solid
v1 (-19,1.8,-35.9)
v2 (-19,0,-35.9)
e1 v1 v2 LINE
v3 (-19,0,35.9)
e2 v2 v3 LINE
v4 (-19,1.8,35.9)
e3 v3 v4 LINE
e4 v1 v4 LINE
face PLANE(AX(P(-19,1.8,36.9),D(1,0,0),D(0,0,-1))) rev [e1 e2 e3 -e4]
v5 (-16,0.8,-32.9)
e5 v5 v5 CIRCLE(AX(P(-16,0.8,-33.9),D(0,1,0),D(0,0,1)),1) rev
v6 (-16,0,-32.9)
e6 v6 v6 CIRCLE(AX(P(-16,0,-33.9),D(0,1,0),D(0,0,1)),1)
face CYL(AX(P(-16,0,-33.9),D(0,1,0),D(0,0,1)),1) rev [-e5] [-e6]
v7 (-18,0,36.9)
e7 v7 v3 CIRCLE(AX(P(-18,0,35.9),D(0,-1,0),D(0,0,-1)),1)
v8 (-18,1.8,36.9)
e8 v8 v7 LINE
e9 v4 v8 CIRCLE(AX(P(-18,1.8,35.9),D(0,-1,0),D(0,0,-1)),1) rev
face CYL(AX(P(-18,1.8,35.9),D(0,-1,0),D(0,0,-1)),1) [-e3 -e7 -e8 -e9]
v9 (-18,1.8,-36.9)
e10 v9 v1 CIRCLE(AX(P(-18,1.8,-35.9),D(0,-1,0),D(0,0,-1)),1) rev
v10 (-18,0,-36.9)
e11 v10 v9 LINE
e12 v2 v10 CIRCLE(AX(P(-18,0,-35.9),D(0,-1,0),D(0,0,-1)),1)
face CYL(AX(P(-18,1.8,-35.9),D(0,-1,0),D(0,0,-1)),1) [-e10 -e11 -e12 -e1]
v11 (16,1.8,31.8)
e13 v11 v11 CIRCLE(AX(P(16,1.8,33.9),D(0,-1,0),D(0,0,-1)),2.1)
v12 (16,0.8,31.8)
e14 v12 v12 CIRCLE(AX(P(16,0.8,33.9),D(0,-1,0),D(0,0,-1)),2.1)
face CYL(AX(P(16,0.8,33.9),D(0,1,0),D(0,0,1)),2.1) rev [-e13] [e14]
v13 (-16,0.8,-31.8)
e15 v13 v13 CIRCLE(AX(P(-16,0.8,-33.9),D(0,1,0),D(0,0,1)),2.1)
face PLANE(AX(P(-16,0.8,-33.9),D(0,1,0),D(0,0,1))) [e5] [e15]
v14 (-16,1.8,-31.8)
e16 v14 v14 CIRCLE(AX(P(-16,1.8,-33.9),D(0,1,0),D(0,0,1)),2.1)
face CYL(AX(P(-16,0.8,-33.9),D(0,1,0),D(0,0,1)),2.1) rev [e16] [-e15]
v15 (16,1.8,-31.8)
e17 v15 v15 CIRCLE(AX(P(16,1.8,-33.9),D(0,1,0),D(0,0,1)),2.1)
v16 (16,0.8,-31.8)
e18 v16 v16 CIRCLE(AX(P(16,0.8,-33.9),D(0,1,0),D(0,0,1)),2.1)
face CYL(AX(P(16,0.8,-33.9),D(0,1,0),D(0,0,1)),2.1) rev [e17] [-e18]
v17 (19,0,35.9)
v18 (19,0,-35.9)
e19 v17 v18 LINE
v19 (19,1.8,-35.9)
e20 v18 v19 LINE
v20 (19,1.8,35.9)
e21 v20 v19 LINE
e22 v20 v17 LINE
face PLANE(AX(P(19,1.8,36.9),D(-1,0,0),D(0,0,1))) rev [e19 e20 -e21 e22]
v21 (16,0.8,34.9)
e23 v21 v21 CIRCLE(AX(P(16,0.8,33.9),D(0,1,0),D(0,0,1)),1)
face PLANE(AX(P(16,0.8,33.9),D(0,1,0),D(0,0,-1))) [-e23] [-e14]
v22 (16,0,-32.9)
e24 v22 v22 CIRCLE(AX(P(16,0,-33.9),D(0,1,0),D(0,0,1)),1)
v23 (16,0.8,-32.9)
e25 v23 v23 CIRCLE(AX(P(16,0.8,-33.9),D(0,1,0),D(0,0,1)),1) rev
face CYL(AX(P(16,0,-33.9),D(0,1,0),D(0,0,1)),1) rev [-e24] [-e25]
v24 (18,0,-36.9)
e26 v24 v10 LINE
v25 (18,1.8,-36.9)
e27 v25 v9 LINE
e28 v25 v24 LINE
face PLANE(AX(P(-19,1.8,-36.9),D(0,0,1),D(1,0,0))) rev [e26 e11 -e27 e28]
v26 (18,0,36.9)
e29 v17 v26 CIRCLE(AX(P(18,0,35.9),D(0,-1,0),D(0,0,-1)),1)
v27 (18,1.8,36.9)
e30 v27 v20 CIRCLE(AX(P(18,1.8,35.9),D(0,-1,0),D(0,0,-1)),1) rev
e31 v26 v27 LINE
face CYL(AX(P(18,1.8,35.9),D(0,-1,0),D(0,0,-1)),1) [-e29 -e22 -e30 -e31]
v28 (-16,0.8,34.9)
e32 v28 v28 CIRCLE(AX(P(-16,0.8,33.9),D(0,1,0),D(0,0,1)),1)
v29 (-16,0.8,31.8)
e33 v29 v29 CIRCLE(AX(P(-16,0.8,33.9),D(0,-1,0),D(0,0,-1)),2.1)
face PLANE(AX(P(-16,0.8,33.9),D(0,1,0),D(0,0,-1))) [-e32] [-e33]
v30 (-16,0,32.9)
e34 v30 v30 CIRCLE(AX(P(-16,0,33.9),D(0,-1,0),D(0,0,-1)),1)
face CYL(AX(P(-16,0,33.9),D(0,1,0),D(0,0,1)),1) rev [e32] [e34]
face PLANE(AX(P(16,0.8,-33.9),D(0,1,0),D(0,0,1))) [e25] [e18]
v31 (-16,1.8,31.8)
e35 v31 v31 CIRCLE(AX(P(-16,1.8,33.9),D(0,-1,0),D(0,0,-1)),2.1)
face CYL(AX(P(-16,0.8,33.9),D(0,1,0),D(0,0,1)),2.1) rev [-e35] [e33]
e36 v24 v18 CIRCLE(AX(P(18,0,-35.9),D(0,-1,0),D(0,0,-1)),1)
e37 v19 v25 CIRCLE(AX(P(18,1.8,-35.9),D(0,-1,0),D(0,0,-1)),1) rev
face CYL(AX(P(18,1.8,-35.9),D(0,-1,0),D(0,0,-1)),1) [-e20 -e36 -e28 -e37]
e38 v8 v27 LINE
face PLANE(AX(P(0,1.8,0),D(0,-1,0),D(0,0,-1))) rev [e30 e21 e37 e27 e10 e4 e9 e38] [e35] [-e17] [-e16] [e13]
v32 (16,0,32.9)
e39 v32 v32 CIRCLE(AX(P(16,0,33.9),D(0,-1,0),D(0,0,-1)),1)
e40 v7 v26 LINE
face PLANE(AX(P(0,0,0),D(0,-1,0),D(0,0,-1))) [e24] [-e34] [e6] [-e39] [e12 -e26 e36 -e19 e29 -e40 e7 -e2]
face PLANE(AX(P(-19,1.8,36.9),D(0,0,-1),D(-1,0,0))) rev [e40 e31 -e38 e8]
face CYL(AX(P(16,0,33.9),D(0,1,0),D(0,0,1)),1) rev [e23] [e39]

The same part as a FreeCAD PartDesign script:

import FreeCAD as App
import Part
import Sketcher
from FreeCAD import Vector


def edges_at(feature, points):
    """Names of the edges that pass closest to the given points."""
    edges = feature.Shape.Edges
    near = lambda p: min(range(len(edges)), key=lambda i: edges[i].distToShape(Part.Vertex(*p))[0])
    return sorted({f"Edge{near(p) + 1}" for p in points})


def add_polygon(sketch, points):
    """Adds a closed chain of lines whose ends are joined by coincident constraints."""
    first, n = sketch.GeometryCount, len(points)
    for a, b in zip(points, points[1:] + points[:1]):
        sketch.addGeometry(Part.LineSegment(App.Vector(*a, 0), App.Vector(*b, 0)), False)
    for i in range(n):
        sketch.addConstraint(Sketcher.Constraint("Coincident", first + i, 2, first + (i + 1) % n, 1))

doc = App.newDocument("Part")
body = doc.addObject("PartDesign::Body", "Body")

# Sketch on XZ plane
sketch1 = body.newObject("Sketcher::SketchObject", "Sketch")
sketch1.AttachmentSupport = (doc.getObject("XZ_Plane"), [""])
sketch1.MapMode = "FlatFace"
add_polygon(sketch1, [(-19, -37), (-19, 37), (19, 37), (19, -37)])  # lines 0-3
sketch1.addConstraint([
    Sketcher.Constraint("Vertical", 0),
    Sketcher.Constraint("Horizontal", 1),
    Sketcher.Constraint("Vertical", 2),
    Sketcher.Constraint("Horizontal", 3),
    Sketcher.Constraint("Symmetric", 0, 2, 2, 2, -1, 1),
    Sketcher.Constraint("DistanceX", 1, 1, 1, 2, 38.0),
    Sketcher.Constraint("DistanceY", 0, 1, 0, 2, 73.8),
])
pad1 = body.newObject("PartDesign::Pad", "Pad")
pad1.Profile = sketch1
pad1.Length = 1.8
pad1.Reversed = True

# Sketch on XZ plane
sketch2 = body.newObject("Sketcher::SketchObject", "Sketch001")
sketch2.AttachmentSupport = (doc.getObject("XZ_Plane"), [""])
sketch2.MapMode = "FlatFace"
sketch2.AttachmentOffset = App.Placement(Vector(0, 0, -1.8), App.Rotation())
sketch2.addGeometry([
    Part.Circle(Vector(-16, -33.9, 0), Vector(0, 0, 1), 1),
    Part.Circle(Vector(16, -33.9, 0), Vector(0, 0, 1), 1),
], False)
sketch2.addConstraint([
    Sketcher.Constraint("Equal", 0, 1),
    Sketcher.Constraint("Symmetric", 0, 3, 1, 3, -2),
    Sketcher.Constraint("Diameter", 0, 2.0),
    Sketcher.Constraint("DistanceX", 0, 3, -1, 1, 16.0),
    Sketcher.Constraint("DistanceY", 0, 3, -1, 1, 33.9),
])
pocket1 = body.newObject("PartDesign::Pocket", "Pocket")
pocket1.Profile = sketch2
pocket1.Type = "ThroughAll"
pocket1.Reversed = True

# Sketch on XZ plane
sketch3 = body.newObject("Sketcher::SketchObject", "Sketch002")
sketch3.AttachmentSupport = (doc.getObject("XZ_Plane"), [""])
sketch3.MapMode = "FlatFace"
sketch3.AttachmentOffset = App.Placement(Vector(0, 0, -1.8), App.Rotation())
sketch3.addGeometry([
    Part.Circle(Vector(-16, -33.9, 0), Vector(0, 0, 1), 2.1),
    Part.Circle(Vector(16, -33.9, 0), Vector(0, 0, 1), 2.1),
], False)
sketch3.addConstraint([
    Sketcher.Constraint("Equal", 0, 1),
    Sketcher.Constraint("Symmetric", 0, 3, 1, 3, -2),
    Sketcher.Constraint("Diameter", 0, 4.2),
    Sketcher.Constraint("DistanceX", 0, 3, -1, 1, 16.0),
    Sketcher.Constraint("DistanceY", 0, 3, -1, 1, 33.9),
])
pocket2 = body.newObject("PartDesign::Pocket", "Pocket001")
pocket2.Profile = sketch3
pocket2.Length = 1
pocket2.Reversed = True
doc.recompute()

mirrored = body.newObject("PartDesign::Mirrored", "Mirrored")
mirrored.Originals = [pocket1, pocket2]
mirrored.MirrorPlane = (doc.getObject("XY_Plane"), [""])
body.Tip = mirrored
doc.recompute()

fillet = body.newObject("PartDesign::Fillet", "Fillet")
fillet.Base = (mirrored, edges_at(mirrored, [
    (19, 0.9, 36.9),
    (-19, 0.9, 36.9),
    (-19, 0.9, -36.9),
    (19, 0.9, -36.9),
]))
fillet.Radius = 1

doc.recompute()
